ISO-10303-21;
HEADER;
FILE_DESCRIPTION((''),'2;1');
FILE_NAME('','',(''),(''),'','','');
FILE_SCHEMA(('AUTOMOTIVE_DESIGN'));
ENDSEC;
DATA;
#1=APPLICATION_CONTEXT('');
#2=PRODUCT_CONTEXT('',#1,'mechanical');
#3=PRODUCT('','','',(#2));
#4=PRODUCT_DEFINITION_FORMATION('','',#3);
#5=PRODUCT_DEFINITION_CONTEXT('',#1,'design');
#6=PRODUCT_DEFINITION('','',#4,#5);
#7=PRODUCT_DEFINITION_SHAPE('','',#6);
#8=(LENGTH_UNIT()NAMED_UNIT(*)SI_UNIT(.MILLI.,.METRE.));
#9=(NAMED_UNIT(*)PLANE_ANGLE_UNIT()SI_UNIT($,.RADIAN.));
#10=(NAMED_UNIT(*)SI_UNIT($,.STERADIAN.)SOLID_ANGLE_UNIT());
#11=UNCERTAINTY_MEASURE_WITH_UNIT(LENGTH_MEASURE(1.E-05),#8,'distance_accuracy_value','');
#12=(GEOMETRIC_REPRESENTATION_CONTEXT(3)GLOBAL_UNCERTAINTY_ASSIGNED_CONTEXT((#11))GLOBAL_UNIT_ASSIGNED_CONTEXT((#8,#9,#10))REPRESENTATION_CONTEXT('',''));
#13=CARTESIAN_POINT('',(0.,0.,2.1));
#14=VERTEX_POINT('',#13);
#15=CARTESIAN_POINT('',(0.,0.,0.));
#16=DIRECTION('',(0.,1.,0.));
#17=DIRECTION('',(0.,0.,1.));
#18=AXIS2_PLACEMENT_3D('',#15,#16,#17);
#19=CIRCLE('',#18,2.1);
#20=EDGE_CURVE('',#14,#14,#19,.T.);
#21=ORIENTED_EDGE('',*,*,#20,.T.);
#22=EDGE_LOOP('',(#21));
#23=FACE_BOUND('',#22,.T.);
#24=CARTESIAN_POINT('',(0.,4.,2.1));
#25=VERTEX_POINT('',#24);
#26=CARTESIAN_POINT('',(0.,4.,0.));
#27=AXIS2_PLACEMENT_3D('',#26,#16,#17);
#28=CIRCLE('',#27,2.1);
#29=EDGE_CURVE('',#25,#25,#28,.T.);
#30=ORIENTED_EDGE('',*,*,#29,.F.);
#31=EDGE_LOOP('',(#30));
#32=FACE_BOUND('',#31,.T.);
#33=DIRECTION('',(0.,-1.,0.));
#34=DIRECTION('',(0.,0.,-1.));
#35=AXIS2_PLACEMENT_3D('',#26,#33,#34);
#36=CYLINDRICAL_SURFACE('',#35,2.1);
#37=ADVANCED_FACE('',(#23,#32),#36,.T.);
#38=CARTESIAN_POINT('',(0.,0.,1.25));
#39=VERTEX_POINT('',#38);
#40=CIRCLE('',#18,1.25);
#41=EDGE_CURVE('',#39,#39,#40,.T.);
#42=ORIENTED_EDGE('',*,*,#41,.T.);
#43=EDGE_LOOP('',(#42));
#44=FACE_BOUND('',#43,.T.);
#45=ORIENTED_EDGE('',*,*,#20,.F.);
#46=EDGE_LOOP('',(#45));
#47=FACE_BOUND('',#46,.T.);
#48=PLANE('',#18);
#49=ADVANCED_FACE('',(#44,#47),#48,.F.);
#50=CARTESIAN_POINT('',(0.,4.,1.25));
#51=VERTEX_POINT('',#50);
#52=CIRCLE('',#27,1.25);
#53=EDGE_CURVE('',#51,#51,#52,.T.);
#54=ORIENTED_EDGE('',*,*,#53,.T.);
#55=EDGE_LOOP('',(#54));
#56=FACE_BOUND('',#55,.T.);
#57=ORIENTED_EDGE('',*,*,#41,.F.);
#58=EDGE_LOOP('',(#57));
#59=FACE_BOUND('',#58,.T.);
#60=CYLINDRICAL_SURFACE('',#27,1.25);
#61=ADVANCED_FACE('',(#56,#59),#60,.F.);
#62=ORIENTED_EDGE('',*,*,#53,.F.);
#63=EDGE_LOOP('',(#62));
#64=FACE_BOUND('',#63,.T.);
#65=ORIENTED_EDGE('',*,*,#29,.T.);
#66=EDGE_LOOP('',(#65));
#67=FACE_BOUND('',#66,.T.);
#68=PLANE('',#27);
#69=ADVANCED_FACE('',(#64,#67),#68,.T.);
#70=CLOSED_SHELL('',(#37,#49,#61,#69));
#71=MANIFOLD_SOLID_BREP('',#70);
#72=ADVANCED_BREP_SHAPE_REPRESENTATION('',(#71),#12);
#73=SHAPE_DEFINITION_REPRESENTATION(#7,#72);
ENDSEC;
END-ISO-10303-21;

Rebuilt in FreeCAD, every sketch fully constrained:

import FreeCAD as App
import Part
import Sketcher

V = App.Vector
Q = App.Units.Quantity

doc = App.newDocument("Part")
params = doc.addObject("Spreadsheet::Sheet", "Params")
for row, (alias, value) in enumerate([
    ("sketch1_diameter", "4.2 mm"),
    ("pad1_length", "4 mm"),
    ("sketch2_diameter", "2.5 mm"),
    ("hole_diameter", "2.5 mm"),
], start=1):
    params.set(f"A{row}", alias)
    params.set(f"B{row}", "=" + value)
    params.setAlias(f"B{row}", alias)

body = doc.addObject("PartDesign::Body", "Body")

sketch1 = body.newObject("Sketcher::SketchObject", "Sketch")
sketch1.AttachmentSupport = (doc.getObject("XZ_Plane"), [""])
sketch1.MapMode = "FlatFace"
sketch1.addGeometry(Part.Circle(V(0, 0, 0), V(0, 0, 1), 2.1), False)
sketch1.addConstraint([
    Sketcher.Constraint("Coincident", 0, 3, -1, 1),
    Sketcher.Constraint("Diameter", 0, Q("4.2 mm")),
])
sketch1.setExpression("Constraints[1]", "Params.sketch1_diameter")
pad1 = body.newObject("PartDesign::Pad", "Pad")
pad1.Profile = sketch1
pad1.setExpression("Length", "Params.pad1_length")
pad1.Reversed = True

sketch2 = body.newObject("Sketcher::SketchObject", "Sketch001")
sketch2.AttachmentSupport = (doc.getObject("XZ_Plane"), [""])
sketch2.MapMode = "FlatFace"
sketch2.AttachmentOffset = App.Placement(V(0, 0, -4), App.Rotation())
sketch2.addGeometry(Part.Circle(V(0, 0, 0), V(0, 0, 1), 1.25), False)
sketch2.addConstraint([
    Sketcher.Constraint("Coincident", 0, 3, -1, 1),
    Sketcher.Constraint("Diameter", 0, Q("2.5 mm")),
])
sketch2.setExpression("Constraints[1]", "Params.sketch2_diameter")
doc.recompute()
hole = body.newObject("PartDesign::Hole", "Hole")
hole.Profile = sketch2
hole.ThreadType = "None"
hole.setExpression("Diameter", "Params.hole_diameter")
hole.DepthType = "ThroughAll"
hole.Reversed = True

doc.recompute()
